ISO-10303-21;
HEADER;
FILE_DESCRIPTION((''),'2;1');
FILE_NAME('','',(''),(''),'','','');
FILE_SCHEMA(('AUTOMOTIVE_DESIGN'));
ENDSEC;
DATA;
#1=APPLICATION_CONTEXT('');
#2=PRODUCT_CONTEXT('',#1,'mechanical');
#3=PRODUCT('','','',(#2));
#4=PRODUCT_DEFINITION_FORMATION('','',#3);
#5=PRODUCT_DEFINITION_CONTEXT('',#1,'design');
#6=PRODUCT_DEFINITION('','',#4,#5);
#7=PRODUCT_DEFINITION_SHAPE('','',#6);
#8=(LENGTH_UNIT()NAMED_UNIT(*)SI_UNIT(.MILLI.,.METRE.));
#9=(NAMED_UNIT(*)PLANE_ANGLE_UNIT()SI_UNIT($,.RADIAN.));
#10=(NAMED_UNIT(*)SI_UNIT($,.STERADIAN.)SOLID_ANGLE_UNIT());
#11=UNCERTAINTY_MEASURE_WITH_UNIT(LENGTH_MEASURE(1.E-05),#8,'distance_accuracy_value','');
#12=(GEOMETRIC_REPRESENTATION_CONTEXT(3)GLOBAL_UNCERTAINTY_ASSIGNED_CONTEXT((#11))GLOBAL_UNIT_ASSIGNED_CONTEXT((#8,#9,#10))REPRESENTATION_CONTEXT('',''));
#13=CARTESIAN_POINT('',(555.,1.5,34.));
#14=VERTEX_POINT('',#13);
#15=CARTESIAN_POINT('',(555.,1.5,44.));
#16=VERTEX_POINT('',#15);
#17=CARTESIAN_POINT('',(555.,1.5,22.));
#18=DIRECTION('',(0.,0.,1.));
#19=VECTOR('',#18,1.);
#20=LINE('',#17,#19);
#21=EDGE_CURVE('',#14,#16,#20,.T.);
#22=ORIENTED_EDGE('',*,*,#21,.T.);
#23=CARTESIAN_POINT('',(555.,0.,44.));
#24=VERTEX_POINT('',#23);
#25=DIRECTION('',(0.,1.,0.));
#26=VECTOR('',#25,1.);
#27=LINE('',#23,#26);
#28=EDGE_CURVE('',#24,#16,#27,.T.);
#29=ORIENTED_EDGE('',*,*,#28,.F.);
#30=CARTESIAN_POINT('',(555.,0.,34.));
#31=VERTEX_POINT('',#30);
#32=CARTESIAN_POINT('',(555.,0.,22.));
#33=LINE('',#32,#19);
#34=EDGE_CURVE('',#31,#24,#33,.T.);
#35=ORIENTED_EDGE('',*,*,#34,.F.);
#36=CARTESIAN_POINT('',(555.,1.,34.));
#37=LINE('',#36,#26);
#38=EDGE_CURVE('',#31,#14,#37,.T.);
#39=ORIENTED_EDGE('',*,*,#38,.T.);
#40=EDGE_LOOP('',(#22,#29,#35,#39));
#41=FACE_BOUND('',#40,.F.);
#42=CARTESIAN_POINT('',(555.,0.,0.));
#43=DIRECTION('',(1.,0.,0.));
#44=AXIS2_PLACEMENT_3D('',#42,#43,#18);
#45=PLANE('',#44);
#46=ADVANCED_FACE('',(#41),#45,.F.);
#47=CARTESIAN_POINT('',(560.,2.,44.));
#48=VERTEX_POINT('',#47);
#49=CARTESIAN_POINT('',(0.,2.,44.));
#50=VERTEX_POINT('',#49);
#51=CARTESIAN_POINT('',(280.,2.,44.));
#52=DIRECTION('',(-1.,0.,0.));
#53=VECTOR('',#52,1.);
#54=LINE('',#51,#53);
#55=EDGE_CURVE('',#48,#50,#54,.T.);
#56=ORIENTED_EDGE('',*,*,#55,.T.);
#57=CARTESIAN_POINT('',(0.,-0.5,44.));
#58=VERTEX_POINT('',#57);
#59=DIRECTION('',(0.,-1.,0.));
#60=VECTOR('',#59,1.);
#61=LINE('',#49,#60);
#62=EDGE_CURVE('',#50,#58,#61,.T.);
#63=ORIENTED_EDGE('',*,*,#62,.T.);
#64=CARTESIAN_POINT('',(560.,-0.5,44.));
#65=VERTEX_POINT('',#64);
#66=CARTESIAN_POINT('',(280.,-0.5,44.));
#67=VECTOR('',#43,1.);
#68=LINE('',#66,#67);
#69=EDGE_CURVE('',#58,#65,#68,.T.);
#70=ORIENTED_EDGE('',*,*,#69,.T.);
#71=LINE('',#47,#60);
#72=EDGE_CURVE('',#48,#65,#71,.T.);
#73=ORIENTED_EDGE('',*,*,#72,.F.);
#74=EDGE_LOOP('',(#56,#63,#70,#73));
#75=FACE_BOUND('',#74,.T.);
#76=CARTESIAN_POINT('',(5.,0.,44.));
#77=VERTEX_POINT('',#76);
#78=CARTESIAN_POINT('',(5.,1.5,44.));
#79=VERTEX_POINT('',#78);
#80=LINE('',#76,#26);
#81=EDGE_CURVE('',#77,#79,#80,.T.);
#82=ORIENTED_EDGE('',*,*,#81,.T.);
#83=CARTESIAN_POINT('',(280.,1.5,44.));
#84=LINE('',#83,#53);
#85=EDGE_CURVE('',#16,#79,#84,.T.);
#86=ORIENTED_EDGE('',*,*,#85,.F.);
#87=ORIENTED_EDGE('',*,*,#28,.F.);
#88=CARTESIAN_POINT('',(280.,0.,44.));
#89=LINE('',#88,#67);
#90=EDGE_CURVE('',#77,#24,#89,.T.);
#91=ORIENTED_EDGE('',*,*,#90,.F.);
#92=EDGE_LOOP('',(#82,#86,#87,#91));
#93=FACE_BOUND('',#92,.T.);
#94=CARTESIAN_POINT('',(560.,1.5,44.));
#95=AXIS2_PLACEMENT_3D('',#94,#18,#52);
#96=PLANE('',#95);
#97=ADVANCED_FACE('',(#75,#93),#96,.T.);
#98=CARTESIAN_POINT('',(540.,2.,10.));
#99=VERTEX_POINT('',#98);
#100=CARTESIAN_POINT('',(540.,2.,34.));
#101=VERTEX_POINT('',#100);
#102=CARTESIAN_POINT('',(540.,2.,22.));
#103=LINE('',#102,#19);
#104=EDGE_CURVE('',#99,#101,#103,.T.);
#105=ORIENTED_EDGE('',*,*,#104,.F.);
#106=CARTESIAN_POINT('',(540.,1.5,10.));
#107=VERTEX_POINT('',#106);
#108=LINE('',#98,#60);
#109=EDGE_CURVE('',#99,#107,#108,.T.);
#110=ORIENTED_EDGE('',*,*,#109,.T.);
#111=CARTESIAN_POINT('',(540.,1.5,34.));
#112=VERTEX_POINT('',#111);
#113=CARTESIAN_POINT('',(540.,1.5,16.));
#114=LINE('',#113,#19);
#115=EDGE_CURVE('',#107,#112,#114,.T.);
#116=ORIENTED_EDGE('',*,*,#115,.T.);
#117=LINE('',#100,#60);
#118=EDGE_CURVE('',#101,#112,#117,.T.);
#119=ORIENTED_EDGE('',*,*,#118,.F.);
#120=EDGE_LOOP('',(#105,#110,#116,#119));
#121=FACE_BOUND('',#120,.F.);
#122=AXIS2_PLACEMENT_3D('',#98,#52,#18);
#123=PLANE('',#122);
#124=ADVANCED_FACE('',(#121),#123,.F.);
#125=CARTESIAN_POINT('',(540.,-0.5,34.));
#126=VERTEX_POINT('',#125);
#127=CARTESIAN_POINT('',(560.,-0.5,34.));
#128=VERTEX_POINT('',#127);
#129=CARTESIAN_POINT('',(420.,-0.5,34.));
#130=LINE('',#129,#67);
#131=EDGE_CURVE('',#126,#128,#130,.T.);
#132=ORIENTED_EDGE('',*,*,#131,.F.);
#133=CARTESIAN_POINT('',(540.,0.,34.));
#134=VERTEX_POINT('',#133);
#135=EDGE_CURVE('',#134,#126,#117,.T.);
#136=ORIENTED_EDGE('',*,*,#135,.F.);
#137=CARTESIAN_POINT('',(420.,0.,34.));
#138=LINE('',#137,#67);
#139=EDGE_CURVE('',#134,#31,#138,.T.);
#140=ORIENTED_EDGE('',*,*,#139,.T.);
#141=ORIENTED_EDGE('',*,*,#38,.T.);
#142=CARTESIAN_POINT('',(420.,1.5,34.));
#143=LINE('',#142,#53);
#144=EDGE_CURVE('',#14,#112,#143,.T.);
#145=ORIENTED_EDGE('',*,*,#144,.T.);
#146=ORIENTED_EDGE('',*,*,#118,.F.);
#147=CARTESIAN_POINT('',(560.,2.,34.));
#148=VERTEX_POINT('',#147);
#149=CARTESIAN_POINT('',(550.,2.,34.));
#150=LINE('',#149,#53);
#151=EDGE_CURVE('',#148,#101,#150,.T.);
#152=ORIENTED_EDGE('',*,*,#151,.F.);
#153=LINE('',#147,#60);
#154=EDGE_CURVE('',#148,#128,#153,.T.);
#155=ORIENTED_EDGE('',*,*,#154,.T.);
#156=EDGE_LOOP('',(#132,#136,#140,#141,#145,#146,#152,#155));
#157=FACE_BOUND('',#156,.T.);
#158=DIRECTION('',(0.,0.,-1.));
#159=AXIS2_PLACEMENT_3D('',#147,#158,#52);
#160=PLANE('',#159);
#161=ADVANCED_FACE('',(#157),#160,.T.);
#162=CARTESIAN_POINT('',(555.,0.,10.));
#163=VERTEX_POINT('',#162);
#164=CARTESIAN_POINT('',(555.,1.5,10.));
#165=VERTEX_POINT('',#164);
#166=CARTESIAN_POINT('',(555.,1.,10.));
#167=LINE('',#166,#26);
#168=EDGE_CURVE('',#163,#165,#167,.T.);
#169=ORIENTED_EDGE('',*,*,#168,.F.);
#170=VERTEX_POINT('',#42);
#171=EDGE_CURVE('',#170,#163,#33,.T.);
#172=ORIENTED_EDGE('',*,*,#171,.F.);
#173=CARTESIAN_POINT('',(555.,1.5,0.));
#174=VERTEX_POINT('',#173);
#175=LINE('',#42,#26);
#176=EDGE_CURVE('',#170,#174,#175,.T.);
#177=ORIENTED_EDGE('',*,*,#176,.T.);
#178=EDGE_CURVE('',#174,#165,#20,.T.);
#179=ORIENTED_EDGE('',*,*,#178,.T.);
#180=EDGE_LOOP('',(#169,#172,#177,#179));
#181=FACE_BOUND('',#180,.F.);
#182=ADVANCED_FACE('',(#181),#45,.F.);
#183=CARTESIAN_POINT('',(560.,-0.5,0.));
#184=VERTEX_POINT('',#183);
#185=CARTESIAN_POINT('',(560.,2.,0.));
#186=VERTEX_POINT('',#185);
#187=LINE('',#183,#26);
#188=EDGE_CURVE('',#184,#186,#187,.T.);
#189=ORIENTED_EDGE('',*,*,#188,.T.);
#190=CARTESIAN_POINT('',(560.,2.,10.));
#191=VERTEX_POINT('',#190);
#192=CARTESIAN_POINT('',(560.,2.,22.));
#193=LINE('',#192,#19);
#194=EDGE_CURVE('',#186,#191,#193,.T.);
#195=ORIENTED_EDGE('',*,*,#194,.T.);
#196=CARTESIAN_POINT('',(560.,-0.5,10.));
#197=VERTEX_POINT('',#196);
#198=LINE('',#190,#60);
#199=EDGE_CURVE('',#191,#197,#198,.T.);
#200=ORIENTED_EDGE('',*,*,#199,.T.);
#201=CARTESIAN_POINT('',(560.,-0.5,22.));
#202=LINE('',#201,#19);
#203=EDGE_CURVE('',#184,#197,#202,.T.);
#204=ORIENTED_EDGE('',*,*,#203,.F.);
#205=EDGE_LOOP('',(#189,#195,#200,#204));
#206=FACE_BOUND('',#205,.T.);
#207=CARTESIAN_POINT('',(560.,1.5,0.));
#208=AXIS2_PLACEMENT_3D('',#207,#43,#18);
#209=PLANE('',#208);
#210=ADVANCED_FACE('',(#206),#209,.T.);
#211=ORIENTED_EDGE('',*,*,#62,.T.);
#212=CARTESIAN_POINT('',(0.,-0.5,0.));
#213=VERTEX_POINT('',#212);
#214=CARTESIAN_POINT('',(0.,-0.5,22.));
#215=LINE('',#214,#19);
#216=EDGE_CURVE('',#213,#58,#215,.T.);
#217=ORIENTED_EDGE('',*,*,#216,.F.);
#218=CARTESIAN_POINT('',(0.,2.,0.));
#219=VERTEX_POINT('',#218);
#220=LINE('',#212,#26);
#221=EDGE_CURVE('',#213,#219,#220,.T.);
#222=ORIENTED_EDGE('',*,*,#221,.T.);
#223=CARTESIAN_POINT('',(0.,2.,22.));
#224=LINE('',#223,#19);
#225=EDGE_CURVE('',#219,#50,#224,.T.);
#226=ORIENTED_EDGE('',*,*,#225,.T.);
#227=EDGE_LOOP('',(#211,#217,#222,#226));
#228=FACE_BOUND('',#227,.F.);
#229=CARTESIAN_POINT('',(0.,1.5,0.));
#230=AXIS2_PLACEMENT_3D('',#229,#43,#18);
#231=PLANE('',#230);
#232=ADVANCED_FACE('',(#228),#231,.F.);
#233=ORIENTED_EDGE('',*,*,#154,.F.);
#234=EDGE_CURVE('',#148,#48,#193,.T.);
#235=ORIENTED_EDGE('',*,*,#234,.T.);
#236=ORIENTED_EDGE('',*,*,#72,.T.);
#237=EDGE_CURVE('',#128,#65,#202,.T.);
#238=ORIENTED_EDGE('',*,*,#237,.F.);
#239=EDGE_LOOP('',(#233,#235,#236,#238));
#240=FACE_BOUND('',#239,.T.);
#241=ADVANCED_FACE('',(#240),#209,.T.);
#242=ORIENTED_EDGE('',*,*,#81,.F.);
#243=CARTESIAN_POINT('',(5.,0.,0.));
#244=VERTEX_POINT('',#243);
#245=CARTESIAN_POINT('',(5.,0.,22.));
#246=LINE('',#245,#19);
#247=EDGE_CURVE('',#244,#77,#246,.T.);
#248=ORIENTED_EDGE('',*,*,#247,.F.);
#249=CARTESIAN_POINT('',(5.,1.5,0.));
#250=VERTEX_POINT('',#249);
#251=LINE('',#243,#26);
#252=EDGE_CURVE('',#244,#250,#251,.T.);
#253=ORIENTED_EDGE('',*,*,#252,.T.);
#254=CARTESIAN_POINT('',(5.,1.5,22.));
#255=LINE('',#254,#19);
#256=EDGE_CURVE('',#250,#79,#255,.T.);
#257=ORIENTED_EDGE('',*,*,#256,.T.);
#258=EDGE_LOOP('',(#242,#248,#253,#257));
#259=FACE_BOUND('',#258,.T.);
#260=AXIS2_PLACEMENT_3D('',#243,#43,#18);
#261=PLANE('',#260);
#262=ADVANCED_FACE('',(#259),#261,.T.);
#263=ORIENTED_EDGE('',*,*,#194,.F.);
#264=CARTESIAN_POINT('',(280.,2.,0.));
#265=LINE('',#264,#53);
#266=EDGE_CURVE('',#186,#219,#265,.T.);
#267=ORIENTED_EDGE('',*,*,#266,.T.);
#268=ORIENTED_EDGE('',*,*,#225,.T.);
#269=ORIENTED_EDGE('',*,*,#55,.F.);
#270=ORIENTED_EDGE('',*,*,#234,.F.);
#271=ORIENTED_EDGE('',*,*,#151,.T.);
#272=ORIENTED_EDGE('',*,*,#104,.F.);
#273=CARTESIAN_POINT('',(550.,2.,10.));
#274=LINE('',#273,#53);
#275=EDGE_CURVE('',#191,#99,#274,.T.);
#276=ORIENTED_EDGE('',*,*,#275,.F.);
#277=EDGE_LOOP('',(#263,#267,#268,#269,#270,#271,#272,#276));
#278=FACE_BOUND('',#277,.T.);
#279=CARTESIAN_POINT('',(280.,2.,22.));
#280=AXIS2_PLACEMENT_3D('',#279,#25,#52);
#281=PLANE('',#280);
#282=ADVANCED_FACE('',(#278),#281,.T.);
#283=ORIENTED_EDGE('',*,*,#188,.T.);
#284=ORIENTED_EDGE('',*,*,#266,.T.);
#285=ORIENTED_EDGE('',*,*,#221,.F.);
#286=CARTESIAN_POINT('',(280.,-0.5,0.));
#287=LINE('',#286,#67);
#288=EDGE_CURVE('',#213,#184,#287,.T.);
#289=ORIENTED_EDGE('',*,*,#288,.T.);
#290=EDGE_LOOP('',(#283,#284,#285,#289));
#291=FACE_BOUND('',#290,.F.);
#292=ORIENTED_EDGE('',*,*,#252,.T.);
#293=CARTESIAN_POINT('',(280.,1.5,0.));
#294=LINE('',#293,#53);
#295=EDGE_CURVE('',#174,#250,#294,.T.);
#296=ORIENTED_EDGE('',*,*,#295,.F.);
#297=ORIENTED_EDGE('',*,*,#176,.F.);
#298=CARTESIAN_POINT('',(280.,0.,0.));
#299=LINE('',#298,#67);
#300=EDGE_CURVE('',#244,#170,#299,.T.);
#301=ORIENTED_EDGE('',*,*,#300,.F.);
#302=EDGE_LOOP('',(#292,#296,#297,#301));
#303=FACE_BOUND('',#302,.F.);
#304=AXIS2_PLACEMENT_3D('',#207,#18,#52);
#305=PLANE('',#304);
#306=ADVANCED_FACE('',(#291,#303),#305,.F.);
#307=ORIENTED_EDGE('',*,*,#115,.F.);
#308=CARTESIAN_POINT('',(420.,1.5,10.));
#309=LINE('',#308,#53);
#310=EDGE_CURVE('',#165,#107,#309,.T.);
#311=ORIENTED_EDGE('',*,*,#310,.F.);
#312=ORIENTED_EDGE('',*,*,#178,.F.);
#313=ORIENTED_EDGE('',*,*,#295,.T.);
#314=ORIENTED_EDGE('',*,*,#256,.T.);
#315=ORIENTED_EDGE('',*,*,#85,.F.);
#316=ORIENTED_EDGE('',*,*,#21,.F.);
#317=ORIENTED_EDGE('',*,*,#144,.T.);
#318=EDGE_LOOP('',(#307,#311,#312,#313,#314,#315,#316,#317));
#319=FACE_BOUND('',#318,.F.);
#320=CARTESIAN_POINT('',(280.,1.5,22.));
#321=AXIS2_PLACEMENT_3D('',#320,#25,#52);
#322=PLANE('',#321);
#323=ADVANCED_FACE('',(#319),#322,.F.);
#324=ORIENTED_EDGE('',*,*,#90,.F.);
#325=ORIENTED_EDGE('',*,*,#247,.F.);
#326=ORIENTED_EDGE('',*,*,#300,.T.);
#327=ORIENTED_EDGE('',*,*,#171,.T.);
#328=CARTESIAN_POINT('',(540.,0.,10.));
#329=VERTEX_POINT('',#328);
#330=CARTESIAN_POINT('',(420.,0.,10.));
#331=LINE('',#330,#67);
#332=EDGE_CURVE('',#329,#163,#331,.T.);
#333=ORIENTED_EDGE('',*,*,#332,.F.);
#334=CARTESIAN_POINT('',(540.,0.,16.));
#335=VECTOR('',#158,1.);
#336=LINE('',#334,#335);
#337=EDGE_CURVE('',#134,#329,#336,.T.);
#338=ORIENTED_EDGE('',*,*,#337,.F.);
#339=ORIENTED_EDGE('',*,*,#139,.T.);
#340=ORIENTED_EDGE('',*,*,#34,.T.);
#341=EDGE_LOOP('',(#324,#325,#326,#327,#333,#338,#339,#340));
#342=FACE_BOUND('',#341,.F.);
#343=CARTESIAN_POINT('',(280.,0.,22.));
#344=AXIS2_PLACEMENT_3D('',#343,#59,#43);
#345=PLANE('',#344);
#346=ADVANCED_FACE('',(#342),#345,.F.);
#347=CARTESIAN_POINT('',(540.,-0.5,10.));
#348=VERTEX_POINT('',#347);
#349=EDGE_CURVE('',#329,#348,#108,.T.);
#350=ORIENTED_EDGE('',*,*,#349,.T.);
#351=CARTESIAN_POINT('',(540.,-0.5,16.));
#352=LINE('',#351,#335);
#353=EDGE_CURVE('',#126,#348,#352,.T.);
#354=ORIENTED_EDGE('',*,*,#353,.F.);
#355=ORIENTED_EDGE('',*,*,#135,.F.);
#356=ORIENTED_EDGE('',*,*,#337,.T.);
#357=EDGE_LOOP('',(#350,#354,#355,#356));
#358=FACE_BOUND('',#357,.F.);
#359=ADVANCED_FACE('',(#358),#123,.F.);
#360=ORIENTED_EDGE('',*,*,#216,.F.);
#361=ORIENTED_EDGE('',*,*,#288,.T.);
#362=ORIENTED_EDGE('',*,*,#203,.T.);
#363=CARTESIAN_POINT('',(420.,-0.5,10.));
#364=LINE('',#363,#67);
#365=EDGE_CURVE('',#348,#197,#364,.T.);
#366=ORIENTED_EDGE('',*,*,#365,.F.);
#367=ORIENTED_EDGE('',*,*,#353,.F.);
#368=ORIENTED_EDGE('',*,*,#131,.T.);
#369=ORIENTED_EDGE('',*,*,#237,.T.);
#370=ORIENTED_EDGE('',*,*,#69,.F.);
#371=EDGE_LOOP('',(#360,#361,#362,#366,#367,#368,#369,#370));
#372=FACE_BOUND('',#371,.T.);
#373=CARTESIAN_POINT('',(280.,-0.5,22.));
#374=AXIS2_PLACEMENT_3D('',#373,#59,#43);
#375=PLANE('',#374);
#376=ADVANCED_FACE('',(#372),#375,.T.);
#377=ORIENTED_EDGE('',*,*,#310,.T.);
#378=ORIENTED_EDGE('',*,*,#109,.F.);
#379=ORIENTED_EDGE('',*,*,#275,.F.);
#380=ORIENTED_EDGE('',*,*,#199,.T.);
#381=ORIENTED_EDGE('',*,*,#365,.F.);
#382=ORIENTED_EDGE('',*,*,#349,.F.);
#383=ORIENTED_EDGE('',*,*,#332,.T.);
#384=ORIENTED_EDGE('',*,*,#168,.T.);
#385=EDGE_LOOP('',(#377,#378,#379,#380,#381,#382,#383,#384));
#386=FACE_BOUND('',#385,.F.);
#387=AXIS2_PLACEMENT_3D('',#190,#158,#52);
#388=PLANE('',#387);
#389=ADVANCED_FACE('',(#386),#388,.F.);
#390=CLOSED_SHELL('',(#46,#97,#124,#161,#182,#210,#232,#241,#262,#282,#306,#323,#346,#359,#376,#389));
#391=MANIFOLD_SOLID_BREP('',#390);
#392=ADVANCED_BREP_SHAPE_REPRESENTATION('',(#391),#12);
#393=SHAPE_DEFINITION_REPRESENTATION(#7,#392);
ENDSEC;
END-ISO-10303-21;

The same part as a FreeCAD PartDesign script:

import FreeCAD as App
import Part
import Sketcher

V = App.Vector


def add_polygon(sketch, points):
    """Adds a closed chain of lines whose ends are joined by coincident constraints."""
    first, n = sketch.GeometryCount, len(points)
    for a, b in zip(points, points[1:] + points[:1]):
        sketch.addGeometry(Part.LineSegment(App.Vector(*a, 0), App.Vector(*b, 0)), False)
    for i in range(n):
        sketch.addConstraint(Sketcher.Constraint("Coincident", first + i, 2, first + (i + 1) % n, 1))

doc = App.newDocument("Part")
body = doc.addObject("PartDesign::Body", "Body")

sketch1 = body.newObject("Sketcher::SketchObject", "Sketch")
sketch1.AttachmentSupport = (doc.getObject("XZ_Plane"), [""])
sketch1.MapMode = "FlatFace"
add_polygon(sketch1, [(0, 44), (0, 0), (560, 0), (560, 44)])
sketch1.addConstraint(Sketcher.Constraint("Vertical", 0))
sketch1.addConstraint(Sketcher.Constraint("Horizontal", 1))
sketch1.addConstraint(Sketcher.Constraint("Vertical", 2))
sketch1.addConstraint(Sketcher.Constraint("Horizontal", 3))
sketch1.addConstraint(Sketcher.Constraint("Coincident", 0, 2, -1, 1))
sketch1.addConstraint(Sketcher.Constraint("DistanceX", 1, 1, 1, 2, 560.0))
sketch1.addConstraint(Sketcher.Constraint("DistanceY", 0, 2, 0, 1, 44.0))
pad1 = body.newObject("PartDesign::Pad", "Pad")
pad1.Profile = sketch1
pad1.Length = 0.5

sketch2 = body.newObject("Sketcher::SketchObject", "Sketch001")
sketch2.AttachmentSupport = (doc.getObject("XZ_Plane"), [""])
sketch2.MapMode = "FlatFace"
add_polygon(sketch2, [(560, 44), (560, 0), (555, 0), (555, 44)])
add_polygon(sketch2, [(5, 44), (5, 0), (0, 0), (0, 44)])
sketch2.addConstraint(Sketcher.Constraint("Vertical", 0))
sketch2.addConstraint(Sketcher.Constraint("Horizontal", 1))
sketch2.addConstraint(Sketcher.Constraint("Vertical", 2))
sketch2.addConstraint(Sketcher.Constraint("Horizontal", 3))
sketch2.addConstraint(Sketcher.Constraint("Vertical", 4))
sketch2.addConstraint(Sketcher.Constraint("Horizontal", 5))
sketch2.addConstraint(Sketcher.Constraint("Vertical", 6))
sketch2.addConstraint(Sketcher.Constraint("Horizontal", 7))
sketch2.addConstraint(Sketcher.Constraint("Coincident", 5, 2, -1, 1))
sketch2.addConstraint(Sketcher.Constraint("PointOnObject", 0, 2, -1))
sketch2.addConstraint(Sketcher.Constraint("Horizontal", 3, 2, 6, 2))
sketch2.addConstraint(Sketcher.Constraint("Equal", 3, 5))
sketch2.addConstraint(Sketcher.Constraint("DistanceX", 1, 2, 1, 1, 5.0))
sketch2.addConstraint(Sketcher.Constraint("DistanceY", 0, 2, 0, 1, 44.0))
sketch2.addConstraint(Sketcher.Constraint("DistanceX", -1, 1, 0, 2, 560.0))
pad2 = body.newObject("PartDesign::Pad", "Pad001")
pad2.Profile = sketch2
pad2.Length = 1.5
pad2.Reversed = True

sketch3 = body.newObject("Sketcher::SketchObject", "Sketch002")
sketch3.AttachmentSupport = (doc.getObject("XZ_Plane"), [""])
sketch3.MapMode = "FlatFace"
sketch3.AttachmentOffset = App.Placement(V(0, 0, -1.5), App.Rotation())
add_polygon(sketch3, [(560, 44), (560, 0), (0, 0), (0, 44)])
sketch3.addConstraint(Sketcher.Constraint("Vertical", 0))
sketch3.addConstraint(Sketcher.Constraint("Horizontal", 1))
sketch3.addConstraint(Sketcher.Constraint("Vertical", 2))
sketch3.addConstraint(Sketcher.Constraint("Horizontal", 3))
sketch3.addConstraint(Sketcher.Constraint("Coincident", 1, 2, -1, 1))
sketch3.addConstraint(Sketcher.Constraint("DistanceX", 1, 2, 1, 1, 560.0))
sketch3.addConstraint(Sketcher.Constraint("DistanceY", 0, 2, 0, 1, 44.0))
pad3 = body.newObject("PartDesign::Pad", "Pad002")
pad3.Profile = sketch3
pad3.Length = 0.5
pad3.Reversed = True

sketch4 = body.newObject("Sketcher::SketchObject", "Sketch003")
sketch4.AttachmentSupport = (doc.getObject("XZ_Plane"), [""])
sketch4.MapMode = "FlatFace"
sketch4.AttachmentOffset = App.Placement(V(0, 0, -2), App.Rotation())
add_polygon(sketch4, [(560, 34), (560, 10), (540, 10), (540, 34)])
sketch4.addConstraint(Sketcher.Constraint("Vertical", 0))
sketch4.addConstraint(Sketcher.Constraint("Horizontal", 1))
sketch4.addConstraint(Sketcher.Constraint("Vertical", 2))
sketch4.addConstraint(Sketcher.Constraint("Horizontal", 3))
sketch4.addConstraint(Sketcher.Constraint("DistanceX", 1, 2, 1, 1, 20.0))
sketch4.addConstraint(Sketcher.Constraint("DistanceY", 0, 2, 0, 1, 24.0))
sketch4.addConstraint(Sketcher.Constraint("DistanceX", -1, 1, 0, 2, 560.0))
sketch4.addConstraint(Sketcher.Constraint("DistanceY", -1, 1, 0, 2, 10.0))
pocket1 = body.newObject("PartDesign::Pocket", "Pocket")
pocket1.Profile = sketch4
pocket1.Type = "ThroughAll"
pocket1.Reversed = True

doc.recompute()
